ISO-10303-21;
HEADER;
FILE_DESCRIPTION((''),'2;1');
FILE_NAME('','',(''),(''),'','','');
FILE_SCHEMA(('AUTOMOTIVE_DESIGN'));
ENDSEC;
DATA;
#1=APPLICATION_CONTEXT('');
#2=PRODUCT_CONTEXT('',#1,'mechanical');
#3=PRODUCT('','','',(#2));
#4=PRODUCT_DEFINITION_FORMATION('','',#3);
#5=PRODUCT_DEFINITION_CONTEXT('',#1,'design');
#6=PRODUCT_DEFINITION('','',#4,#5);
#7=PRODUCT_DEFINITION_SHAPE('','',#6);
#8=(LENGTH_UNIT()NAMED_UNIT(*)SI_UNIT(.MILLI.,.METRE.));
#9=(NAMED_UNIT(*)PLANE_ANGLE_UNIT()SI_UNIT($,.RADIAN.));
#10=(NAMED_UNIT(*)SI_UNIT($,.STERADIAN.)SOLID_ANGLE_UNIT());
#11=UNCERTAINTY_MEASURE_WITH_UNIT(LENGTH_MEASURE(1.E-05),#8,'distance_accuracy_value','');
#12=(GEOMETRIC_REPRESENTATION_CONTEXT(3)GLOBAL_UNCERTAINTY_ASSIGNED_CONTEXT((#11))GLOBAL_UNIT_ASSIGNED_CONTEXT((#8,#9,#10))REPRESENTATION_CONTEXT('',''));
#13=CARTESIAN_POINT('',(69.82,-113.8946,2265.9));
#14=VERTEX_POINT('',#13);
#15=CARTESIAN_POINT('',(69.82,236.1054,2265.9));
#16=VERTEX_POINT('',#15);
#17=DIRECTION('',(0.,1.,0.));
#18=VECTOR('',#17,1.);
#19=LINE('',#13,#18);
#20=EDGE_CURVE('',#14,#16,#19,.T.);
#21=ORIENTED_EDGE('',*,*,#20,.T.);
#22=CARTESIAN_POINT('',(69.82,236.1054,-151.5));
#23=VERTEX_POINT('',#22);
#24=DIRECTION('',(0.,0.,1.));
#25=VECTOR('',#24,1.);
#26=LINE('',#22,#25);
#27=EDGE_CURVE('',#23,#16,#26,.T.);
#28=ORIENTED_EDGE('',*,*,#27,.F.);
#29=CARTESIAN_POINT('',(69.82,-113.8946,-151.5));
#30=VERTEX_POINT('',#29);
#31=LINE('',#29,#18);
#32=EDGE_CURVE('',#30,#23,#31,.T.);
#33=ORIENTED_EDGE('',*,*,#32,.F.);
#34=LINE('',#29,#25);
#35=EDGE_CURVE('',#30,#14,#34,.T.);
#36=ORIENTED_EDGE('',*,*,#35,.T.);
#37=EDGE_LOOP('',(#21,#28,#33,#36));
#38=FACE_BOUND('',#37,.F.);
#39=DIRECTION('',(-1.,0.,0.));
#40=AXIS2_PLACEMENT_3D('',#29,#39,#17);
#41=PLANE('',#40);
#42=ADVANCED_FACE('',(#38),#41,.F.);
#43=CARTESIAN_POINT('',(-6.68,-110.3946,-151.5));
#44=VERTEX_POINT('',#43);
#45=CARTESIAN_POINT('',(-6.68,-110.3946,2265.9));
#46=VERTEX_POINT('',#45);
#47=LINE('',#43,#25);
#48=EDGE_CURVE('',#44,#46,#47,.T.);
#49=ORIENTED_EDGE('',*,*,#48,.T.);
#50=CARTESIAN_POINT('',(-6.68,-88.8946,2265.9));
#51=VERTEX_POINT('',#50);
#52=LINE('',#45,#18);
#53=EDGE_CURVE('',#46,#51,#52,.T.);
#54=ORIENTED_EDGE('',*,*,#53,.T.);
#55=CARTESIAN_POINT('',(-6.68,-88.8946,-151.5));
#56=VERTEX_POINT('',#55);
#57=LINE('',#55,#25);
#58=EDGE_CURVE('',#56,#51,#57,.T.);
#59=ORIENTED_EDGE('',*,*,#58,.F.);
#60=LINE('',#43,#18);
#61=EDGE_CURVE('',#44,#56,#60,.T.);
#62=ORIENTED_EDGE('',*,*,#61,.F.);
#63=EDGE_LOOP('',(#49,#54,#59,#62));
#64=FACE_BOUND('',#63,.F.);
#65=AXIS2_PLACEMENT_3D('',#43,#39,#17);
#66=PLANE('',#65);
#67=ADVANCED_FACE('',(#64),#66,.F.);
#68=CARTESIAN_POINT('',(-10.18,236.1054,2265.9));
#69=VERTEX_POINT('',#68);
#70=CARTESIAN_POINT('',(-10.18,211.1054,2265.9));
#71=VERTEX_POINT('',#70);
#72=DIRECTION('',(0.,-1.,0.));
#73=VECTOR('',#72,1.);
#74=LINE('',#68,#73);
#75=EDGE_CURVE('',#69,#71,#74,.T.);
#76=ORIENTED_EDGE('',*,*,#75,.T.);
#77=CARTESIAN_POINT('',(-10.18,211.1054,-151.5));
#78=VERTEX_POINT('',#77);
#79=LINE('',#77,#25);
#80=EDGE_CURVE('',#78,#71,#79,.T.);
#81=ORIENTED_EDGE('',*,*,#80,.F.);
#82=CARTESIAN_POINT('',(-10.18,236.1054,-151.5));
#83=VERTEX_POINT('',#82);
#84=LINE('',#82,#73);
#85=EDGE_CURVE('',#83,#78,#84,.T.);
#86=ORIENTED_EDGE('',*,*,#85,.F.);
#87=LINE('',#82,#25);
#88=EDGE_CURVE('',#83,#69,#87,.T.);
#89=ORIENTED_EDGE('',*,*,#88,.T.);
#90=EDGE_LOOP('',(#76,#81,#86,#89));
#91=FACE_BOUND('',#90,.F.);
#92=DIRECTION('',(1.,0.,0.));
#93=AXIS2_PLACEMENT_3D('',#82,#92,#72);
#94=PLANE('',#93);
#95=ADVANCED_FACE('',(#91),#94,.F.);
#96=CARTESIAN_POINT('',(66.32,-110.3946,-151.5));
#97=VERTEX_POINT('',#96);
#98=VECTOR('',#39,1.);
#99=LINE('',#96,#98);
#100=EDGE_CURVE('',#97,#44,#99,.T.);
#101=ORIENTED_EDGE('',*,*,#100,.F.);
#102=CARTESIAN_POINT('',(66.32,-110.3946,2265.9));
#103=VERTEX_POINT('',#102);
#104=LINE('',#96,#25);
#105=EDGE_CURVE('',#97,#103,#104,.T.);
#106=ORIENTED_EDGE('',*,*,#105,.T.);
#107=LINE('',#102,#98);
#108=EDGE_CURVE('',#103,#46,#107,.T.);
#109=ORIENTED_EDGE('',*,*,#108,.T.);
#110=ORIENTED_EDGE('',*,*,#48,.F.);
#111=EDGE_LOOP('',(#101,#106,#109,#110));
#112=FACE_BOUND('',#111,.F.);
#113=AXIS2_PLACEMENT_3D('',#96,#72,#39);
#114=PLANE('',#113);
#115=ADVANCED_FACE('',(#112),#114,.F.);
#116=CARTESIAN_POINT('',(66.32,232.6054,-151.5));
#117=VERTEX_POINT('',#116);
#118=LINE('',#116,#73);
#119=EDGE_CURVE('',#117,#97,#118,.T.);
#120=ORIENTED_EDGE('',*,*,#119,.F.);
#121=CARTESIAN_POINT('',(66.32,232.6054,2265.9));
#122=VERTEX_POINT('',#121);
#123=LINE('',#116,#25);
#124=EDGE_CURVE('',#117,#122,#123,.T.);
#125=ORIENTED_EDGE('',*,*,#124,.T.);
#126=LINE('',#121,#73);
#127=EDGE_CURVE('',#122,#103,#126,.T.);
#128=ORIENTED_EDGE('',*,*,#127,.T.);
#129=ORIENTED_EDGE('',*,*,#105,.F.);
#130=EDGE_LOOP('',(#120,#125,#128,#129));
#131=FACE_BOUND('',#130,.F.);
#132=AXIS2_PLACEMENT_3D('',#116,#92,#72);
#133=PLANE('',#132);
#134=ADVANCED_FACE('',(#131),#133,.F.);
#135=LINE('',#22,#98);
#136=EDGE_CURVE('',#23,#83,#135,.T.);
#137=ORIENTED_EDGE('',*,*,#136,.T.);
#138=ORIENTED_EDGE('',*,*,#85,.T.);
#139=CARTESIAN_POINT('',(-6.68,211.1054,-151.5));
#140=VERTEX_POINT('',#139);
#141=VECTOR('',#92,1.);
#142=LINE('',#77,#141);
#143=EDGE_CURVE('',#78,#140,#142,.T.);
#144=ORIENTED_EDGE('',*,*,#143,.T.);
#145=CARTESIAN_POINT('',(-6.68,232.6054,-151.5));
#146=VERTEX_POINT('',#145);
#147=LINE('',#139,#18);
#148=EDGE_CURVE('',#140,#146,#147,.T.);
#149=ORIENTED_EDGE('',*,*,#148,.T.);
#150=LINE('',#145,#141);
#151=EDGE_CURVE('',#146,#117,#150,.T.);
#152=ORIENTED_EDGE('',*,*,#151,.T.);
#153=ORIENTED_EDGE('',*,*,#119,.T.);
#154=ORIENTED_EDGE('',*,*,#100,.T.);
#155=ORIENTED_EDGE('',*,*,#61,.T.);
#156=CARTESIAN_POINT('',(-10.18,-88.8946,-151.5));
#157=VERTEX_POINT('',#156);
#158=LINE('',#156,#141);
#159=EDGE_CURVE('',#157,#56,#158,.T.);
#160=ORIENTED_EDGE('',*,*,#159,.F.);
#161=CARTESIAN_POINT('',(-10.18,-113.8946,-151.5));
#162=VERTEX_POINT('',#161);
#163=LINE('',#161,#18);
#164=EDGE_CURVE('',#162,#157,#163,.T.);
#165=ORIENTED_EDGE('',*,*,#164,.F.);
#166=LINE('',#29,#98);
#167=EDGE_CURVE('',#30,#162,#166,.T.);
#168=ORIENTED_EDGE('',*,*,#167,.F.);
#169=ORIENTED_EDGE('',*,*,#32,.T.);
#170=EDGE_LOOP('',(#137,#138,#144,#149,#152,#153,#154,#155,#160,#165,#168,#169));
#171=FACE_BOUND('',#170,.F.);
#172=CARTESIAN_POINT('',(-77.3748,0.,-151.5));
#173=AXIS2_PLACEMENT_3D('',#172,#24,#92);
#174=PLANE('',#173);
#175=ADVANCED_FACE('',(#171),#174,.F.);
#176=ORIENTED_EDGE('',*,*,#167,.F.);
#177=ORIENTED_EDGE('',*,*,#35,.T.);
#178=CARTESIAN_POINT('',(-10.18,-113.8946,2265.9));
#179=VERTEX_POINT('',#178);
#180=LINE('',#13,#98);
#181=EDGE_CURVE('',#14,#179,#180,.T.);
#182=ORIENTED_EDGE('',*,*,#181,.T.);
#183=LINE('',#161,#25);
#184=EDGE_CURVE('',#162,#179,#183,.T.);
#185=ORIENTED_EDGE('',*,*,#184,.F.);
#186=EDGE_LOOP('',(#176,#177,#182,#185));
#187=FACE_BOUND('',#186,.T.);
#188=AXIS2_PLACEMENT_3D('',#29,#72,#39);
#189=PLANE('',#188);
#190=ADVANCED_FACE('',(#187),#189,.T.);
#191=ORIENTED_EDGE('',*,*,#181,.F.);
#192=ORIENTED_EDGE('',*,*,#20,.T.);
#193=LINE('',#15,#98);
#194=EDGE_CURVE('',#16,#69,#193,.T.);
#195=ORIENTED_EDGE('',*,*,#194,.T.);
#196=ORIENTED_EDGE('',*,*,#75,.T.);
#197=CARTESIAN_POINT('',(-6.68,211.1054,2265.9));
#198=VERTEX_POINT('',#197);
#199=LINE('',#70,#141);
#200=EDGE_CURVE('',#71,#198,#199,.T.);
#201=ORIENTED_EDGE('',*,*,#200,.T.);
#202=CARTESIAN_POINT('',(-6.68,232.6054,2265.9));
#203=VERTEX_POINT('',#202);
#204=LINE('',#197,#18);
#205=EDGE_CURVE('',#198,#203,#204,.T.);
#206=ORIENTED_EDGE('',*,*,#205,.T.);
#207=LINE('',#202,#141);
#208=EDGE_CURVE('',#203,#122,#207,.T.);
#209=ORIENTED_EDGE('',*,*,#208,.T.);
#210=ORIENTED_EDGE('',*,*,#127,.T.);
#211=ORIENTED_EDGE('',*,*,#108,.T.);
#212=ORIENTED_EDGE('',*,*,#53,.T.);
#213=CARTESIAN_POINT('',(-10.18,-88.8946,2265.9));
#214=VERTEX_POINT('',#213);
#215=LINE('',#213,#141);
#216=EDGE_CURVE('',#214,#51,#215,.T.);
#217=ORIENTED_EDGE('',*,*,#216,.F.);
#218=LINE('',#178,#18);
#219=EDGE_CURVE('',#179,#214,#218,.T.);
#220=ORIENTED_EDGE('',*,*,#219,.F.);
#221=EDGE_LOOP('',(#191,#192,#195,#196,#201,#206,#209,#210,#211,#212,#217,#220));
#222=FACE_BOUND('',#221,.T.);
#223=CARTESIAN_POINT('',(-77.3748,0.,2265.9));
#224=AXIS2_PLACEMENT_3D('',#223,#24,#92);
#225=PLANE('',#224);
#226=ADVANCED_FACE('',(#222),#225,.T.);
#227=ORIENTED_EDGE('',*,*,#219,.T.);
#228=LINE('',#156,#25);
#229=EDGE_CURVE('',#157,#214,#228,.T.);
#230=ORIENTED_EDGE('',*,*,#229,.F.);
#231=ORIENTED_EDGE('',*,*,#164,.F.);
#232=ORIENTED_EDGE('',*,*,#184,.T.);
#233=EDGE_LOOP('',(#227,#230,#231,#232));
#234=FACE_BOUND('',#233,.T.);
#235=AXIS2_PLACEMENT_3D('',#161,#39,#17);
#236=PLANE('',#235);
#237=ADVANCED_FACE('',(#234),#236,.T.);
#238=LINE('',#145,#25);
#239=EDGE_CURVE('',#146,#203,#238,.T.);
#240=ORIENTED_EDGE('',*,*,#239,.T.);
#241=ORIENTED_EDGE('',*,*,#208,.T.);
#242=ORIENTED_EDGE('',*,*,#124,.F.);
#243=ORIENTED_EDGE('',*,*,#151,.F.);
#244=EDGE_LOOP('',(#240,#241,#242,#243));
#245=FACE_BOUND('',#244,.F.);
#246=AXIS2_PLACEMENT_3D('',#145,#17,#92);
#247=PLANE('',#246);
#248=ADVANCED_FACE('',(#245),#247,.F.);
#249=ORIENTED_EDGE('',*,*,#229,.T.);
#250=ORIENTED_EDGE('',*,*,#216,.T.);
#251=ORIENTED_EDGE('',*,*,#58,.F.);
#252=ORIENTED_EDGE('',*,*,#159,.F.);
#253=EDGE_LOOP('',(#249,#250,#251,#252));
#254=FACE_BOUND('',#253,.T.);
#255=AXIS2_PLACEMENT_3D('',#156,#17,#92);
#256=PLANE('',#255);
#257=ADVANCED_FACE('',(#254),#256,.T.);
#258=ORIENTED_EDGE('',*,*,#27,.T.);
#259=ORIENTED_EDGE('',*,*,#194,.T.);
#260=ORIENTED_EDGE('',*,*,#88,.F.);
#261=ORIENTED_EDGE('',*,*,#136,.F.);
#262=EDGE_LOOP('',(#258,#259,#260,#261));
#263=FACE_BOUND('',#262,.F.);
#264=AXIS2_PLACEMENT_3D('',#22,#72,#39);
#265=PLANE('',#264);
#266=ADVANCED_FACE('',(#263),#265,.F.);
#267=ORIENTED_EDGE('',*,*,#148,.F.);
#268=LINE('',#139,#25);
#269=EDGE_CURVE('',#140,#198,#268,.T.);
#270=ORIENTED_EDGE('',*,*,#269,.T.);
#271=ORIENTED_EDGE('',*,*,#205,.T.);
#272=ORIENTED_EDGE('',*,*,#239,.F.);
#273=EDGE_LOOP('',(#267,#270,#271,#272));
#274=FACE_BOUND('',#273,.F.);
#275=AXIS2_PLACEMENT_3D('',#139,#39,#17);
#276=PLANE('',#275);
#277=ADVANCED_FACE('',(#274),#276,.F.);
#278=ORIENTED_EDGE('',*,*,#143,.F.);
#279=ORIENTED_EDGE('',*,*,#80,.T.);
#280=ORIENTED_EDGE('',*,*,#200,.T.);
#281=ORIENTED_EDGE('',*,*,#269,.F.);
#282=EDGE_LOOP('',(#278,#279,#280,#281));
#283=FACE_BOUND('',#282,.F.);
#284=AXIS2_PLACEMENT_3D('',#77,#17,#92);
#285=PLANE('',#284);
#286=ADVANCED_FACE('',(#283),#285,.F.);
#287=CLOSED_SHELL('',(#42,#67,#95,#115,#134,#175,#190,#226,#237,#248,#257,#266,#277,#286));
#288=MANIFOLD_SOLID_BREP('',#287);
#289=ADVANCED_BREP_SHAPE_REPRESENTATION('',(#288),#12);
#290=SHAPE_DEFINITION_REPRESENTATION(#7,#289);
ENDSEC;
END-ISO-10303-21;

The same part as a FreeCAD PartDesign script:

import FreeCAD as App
import Part
import Sketcher
from FreeCAD import Vector
Q = App.Units.Quantity

doc = App.newDocument("Part")
body = doc.addObject("PartDesign::Body", "Body")

sketch1 = body.newObject("Sketcher::SketchObject", "Sketch")
sketch1.AttachmentSupport = (doc.getObject("XY_Plane"), [""])
sketch1.MapMode = "FlatFace"
sketch1.AttachmentOffset = App.Placement(Vector(0, 0, -151.5), App.Rotation())
sketch1.addGeometry([
    Part.LineSegment(Vector(-10.2, -113.9, 0), Vector(69.8, -113.9, 0)),
    Part.LineSegment(Vector(69.8, -113.9, 0), Vector(69.8, 236.1, 0)),
    Part.LineSegment(Vector(69.8, 236.1, 0), Vector(-10.2, 236.1, 0)),
    Part.LineSegment(Vector(-10.2, 236.1, 0), Vector(-10.2, 211.1, 0)),
    Part.LineSegment(Vector(-10.2, 211.1, 0), Vector(-6.7, 211.1, 0)),
    Part.LineSegment(Vector(-6.7, 211.1, 0), Vector(-6.7, 232.6, 0)),
    Part.LineSegment(Vector(-6.7, 232.6, 0), Vector(66.3, 232.6, 0)),
    Part.LineSegment(Vector(66.3, 232.6, 0), Vector(66.3, -110.4, 0)),
    Part.LineSegment(Vector(66.3, -110.4, 0), Vector(-6.7, -110.4, 0)),
    Part.LineSegment(Vector(-6.7, -110.4, 0), Vector(-6.7, -88.9, 0)),
    Part.LineSegment(Vector(-6.7, -88.9, 0), Vector(-10.2, -88.9, 0)),
    Part.LineSegment(Vector(-10.2, -88.9, 0), Vector(-10.2, -113.9, 0)),
], False)
sketch1.addConstraint([
    Sketcher.Constraint("Coincident", 0, 2, 1, 1),
    Sketcher.Constraint("Coincident", 1, 2, 2, 1),
    Sketcher.Constraint("Coincident", 2, 2, 3, 1),
    Sketcher.Constraint("Coincident", 3, 2, 4, 1),
    Sketcher.Constraint("Coincident", 4, 2, 5, 1),
    Sketcher.Constraint("Coincident", 5, 2, 6, 1),
    Sketcher.Constraint("Coincident", 6, 2, 7, 1),
    Sketcher.Constraint("Coincident", 7, 2, 8, 1),
    Sketcher.Constraint("Coincident", 8, 2, 9, 1),
    Sketcher.Constraint("Coincident", 9, 2, 10, 1),
    Sketcher.Constraint("Coincident", 10, 2, 11, 1),
    Sketcher.Constraint("Coincident", 11, 2, 0, 1),
    Sketcher.Constraint("Horizontal", 0),
    Sketcher.Constraint("Vertical", 1),
    Sketcher.Constraint("Horizontal", 2),
    Sketcher.Constraint("Vertical", 3),
    Sketcher.Constraint("Horizontal", 4),
    Sketcher.Constraint("Vertical", 5),
    Sketcher.Constraint("Horizontal", 6),
    Sketcher.Constraint("Vertical", 7),
    Sketcher.Constraint("Horizontal", 8),
    Sketcher.Constraint("Vertical", 9),
    Sketcher.Constraint("Horizontal", 10),
    Sketcher.Constraint("Vertical", 11),
    Sketcher.Constraint("Vertical", 5, 2, 8, 2),
    Sketcher.Constraint("Vertical", 3, 2, 10, 2),
    Sketcher.Constraint("Equal", 5, 9),
    Sketcher.Constraint("Equal", 3, 11),
    Sketcher.Constraint("DistanceX", 0, 1, 0, 2, Q("80 mm")),
    Sketcher.Constraint("DistanceY", 1, 1, 1, 2, Q("350 mm")),
    Sketcher.Constraint("DistanceY", 3, 2, 3, 1, Q("25 mm")),
    Sketcher.Constraint("DistanceX", 4, 1, 4, 2, Q("3.5 mm")),
    Sketcher.Constraint("DistanceY", 5, 2, 2, 2, Q("3.5 mm")),
    Sketcher.Constraint("DistanceX", 6, 2, 1, 2, Q("3.5 mm")),
    Sketcher.Constraint("DistanceX", -1, 1, 0, 2, Q("69.82 mm")),
    Sketcher.Constraint("DistanceY", 0, 2, -1, 1, Q("113.8946 mm")),
])
pad1 = body.newObject("PartDesign::Pad", "Pad")
pad1.Profile = sketch1
pad1.Length = 2417.4

doc.recompute()
